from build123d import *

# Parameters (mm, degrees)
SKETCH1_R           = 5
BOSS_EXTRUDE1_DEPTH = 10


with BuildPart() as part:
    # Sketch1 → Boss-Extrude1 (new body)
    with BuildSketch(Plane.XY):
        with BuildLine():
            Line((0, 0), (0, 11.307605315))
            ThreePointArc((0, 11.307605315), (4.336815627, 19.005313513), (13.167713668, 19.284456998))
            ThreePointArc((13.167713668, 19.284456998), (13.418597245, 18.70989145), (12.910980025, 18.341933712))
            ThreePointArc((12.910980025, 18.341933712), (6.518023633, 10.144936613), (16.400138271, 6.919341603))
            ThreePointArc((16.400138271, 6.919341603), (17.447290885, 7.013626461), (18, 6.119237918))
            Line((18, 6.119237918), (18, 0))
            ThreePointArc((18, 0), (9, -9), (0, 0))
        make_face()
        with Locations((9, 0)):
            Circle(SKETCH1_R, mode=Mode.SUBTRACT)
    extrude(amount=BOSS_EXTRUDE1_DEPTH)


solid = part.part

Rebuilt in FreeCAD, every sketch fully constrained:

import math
import FreeCAD as App
import Part
import Sketcher

doc = App.newDocument("Part")
params = doc.addObject("Spreadsheet::Sheet", "Params")
for row, (alias, value) in enumerate([
    ("sketch1_diameter", "10 mm"),
    ("sketch1_radius", "9 mm"),
    ("sketch1_radius2", "1 mm"),
    ("sketch1_radius3", "0.5 mm"),
    ("sketch1_radius4", "6.35 mm"),
    ("pad1_length", "10 mm"),
], start=1):
    params.set(f"A{row}", alias)
    params.set(f"B{row}", "=" + value)
    params.setAlias(f"B{row}", alias)

body = doc.addObject("PartDesign::Body", "Body")

# Sketch on XY plane
sketch1 = body.newObject("Sketcher::SketchObject", "Sketch")
sketch1.AttachmentSupport = (doc.getObject("XY_Plane"), [""])
sketch1.MapMode = "FlatFace"
sketch1.addGeometry(Part.LineSegment(App.Vector(0, 11.3, 0), App.Vector(0, 0, 0)), False)
sketch1.addGeometry(Part.ArcOfCircle(Part.Circle(App.Vector(9, 0, 0), App.Vector(0, 0, 1), 9), math.radians(180), math.radians(360)), False)
sketch1.addGeometry(Part.LineSegment(App.Vector(18, 0, 0), App.Vector(18, 6.1, 0)), False)
sketch1.addGeometry(Part.ArcOfCircle(Part.Circle(App.Vector(17, 6.1, 0), App.Vector(0, 0, 1), 1), math.radians(0), math.radians(127)), False)
sketch1.addGeometry(Part.ArcOfCircle(Part.Circle(App.Vector(12.6, 12, 0), App.Vector(0, 0, 1), 6.3), math.radians(87), math.radians(307)), False)
sketch1.addGeometry(Part.ArcOfCircle(Part.Circle(App.Vector(12.9, 18.8, 0), App.Vector(0, 0, 1), 0.5), math.radians(-93), math.radians(62)), False)
sketch1.addGeometry(Part.ArcOfCircle(Part.Circle(App.Vector(9, 11.3, 0), App.Vector(0, 0, 1), 9), math.radians(62), math.radians(180)), False)
sketch1.addGeometry(Part.Circle(App.Vector(9, 0, 0), App.Vector(0, 0, 1), 5), False)
sketch1.addConstraint(Sketcher.Constraint("Tangent", 0, 2, 1, 1))
sketch1.addConstraint(Sketcher.Constraint("Tangent", 1, 2, 2, 1))
sketch1.addConstraint(Sketcher.Constraint("Tangent", 2, 2, 3, 1))
sketch1.addConstraint(Sketcher.Constraint("Tangent", 3, 2, 4, 2))
sketch1.addConstraint(Sketcher.Constraint("Tangent", 4, 1, 5, 1))
sketch1.addConstraint(Sketcher.Constraint("Tangent", 5, 2, 6, 1))
sketch1.addConstraint(Sketcher.Constraint("Tangent", 6, 2, 0, 1))
sketch1.addConstraint(Sketcher.Constraint("Vertical", 0))
sketch1.addConstraint(Sketcher.Constraint("Vertical", 2))
sketch1.addConstraint(Sketcher.Constraint("Coincident", 0, 2, -1, 1))
sketch1.addConstraint(Sketcher.Constraint("Coincident", 7, 3, 1, 3))
sketch1.addConstraint(Sketcher.Constraint("Equal", 1, 6))
sketch1.addConstraint(Sketcher.Constraint("Diameter", 7, 10.0))
sketch1.addConstraint(Sketcher.Constraint("Radius", 1, 9.0))
sketch1.addConstraint(Sketcher.Constraint("Radius", 3, 1.0))
sketch1.addConstraint(Sketcher.Constraint("Radius", 5, 0.5))
sketch1.addConstraint(Sketcher.Constraint("Radius", 4, 6.35))
sketch1.addConstraint(Sketcher.Constraint("DistanceY", -1, 1, 4, 3, 12.0))
sketch1.addConstraint(Sketcher.Constraint("DistanceY", -1, 1, 5, 3, 18.841299))
sketch1.addConstraint(Sketcher.Constraint("DistanceY", 0, 2, 0, 1, 11.307605))
sketch1.setExpression("Constraints[12]", "Params.sketch1_diameter")
sketch1.setExpression("Constraints[13]", "Params.sketch1_radius")
sketch1.setExpression("Constraints[14]", "Params.sketch1_radius2")
sketch1.setExpression("Constraints[15]", "Params.sketch1_radius3")
sketch1.setExpression("Constraints[16]", "Params.sketch1_radius4")
pad1 = body.newObject("PartDesign::Pad", "Pad")
pad1.Profile = sketch1
pad1.setExpression("Length", "Params.pad1_length")

doc.recompute()
